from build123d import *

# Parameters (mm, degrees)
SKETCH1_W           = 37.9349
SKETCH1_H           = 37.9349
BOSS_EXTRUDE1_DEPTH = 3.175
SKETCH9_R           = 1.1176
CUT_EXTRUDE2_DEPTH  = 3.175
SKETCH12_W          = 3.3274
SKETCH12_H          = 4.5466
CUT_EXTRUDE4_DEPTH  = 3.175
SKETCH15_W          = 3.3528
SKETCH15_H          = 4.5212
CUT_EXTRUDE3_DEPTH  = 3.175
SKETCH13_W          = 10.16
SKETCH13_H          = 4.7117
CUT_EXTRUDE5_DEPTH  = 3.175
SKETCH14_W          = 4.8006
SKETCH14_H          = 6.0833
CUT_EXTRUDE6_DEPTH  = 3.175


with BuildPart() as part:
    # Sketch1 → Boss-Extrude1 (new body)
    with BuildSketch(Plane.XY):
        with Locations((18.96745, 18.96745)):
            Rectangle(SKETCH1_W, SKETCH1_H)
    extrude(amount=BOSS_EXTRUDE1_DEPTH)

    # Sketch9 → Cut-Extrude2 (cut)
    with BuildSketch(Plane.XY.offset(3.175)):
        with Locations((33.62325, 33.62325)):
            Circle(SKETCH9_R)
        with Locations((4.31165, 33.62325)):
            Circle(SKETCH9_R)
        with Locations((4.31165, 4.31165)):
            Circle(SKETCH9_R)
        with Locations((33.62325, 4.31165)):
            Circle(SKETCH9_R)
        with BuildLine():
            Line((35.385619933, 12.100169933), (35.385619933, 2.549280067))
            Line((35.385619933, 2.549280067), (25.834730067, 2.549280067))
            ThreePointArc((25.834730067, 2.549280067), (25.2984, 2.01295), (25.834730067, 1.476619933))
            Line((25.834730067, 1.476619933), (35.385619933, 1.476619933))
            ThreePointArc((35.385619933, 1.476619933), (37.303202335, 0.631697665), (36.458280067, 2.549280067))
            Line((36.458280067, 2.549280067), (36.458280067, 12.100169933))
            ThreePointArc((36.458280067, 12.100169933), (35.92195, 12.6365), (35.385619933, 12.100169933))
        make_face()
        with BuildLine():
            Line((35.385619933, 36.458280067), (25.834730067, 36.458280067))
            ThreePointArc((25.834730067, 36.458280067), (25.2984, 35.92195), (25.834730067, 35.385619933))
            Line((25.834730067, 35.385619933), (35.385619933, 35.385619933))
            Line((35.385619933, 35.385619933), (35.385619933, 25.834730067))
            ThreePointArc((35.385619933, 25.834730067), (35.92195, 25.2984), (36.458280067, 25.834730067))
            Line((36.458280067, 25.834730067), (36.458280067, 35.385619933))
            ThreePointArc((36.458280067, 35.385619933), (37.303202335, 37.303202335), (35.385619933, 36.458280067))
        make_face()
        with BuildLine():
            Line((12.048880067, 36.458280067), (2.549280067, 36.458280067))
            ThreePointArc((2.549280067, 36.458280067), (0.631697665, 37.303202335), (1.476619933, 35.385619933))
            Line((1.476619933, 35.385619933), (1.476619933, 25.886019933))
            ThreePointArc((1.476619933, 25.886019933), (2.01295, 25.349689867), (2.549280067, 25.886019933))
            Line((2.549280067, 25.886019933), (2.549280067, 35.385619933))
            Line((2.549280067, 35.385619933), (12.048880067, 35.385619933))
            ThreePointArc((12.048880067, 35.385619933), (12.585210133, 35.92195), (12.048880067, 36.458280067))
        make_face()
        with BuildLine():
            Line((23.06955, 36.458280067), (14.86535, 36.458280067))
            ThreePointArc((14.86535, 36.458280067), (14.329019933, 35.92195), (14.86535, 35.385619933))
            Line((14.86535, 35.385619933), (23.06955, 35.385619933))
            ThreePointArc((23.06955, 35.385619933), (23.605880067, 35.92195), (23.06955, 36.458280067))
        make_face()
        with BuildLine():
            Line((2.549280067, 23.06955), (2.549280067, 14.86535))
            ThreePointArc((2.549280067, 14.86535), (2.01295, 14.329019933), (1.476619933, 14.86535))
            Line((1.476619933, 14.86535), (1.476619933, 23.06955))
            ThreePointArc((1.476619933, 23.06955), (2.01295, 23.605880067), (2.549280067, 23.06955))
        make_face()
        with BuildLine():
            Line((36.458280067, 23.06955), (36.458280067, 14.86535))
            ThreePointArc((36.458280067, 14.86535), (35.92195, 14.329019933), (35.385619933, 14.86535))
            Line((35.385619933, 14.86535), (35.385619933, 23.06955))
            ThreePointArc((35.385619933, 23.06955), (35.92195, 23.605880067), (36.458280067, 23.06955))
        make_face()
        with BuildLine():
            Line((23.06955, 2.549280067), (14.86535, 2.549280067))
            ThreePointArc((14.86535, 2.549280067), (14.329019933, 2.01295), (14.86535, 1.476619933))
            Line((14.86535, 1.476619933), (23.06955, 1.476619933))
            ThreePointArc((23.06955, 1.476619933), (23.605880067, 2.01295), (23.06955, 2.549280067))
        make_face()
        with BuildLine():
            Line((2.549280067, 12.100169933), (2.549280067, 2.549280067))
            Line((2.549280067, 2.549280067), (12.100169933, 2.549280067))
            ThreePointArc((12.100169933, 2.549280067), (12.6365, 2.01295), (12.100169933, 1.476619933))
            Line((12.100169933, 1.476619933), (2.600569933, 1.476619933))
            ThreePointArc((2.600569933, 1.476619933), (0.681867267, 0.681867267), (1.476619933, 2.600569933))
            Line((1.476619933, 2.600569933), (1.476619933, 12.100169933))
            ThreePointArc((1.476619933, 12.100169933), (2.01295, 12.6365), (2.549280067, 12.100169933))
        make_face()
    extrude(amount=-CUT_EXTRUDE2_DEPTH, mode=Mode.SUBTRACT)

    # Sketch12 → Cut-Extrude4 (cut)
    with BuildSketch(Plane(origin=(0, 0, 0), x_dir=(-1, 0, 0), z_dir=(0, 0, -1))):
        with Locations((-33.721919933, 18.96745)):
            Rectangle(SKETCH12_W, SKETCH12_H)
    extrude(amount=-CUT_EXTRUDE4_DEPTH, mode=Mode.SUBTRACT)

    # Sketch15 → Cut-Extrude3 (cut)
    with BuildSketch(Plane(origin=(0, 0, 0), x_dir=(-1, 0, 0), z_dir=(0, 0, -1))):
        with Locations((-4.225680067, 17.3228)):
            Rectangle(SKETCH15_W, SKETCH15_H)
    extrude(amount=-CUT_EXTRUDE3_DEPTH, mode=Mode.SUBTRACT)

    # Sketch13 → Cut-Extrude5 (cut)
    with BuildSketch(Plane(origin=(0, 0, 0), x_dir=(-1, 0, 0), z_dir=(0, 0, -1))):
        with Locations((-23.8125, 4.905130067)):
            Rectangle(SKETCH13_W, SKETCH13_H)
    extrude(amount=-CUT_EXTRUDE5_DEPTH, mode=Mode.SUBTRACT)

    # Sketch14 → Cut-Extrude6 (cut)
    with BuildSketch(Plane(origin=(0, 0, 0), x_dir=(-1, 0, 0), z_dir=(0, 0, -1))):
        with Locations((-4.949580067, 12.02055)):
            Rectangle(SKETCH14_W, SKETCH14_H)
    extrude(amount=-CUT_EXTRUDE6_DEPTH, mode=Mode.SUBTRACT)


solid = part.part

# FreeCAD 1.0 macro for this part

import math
import FreeCAD as App
import Part
import Sketcher
Q = App.Units.Quantity

doc = App.newDocument("Part")
body = doc.addObject("PartDesign::Body", "Body")

sketch1 = doc.addObject("Sketcher::SketchObject", "Sketch")
body.addObject(sketch1)
sketch1.AttachmentSupport = (doc.XY_Plane, [""])
sketch1.MapMode = "FlatFace"
sketch1.addGeometry([
    Part.LineSegment(App.Vector(0, 38, 0), App.Vector(0, 0, 0)),
    Part.LineSegment(App.Vector(0, 0, 0), App.Vector(38, 0, 0)),
    Part.LineSegment(App.Vector(38, 0, 0), App.Vector(38, 38, 0)),
    Part.LineSegment(App.Vector(38, 38, 0), App.Vector(0, 38, 0)),
], False)
sketch1.addConstraint([
    Sketcher.Constraint("Coincident", 0, 2, 1, 1),
    Sketcher.Constraint("Coincident", 1, 2, 2, 1),
    Sketcher.Constraint("Coincident", 2, 2, 3, 1),
    Sketcher.Constraint("Coincident", 3, 2, 0, 1),
    Sketcher.Constraint("Vertical", 0),
    Sketcher.Constraint("Horizontal", 1),
    Sketcher.Constraint("Vertical", 2),
    Sketcher.Constraint("Horizontal", 3),
    Sketcher.Constraint("Coincident", 0, 2, -1, 1),
    Sketcher.Constraint("Equal", 3, 0),
    Sketcher.Constraint("DistanceX", 1, 1, 1, 2, Q("1.4935 in")),
])
pad1 = doc.addObject("PartDesign::Pad", "Pad")
body.addObject(pad1)
pad1.Profile = sketch1
pad1.Length = Q("0.125 in")

sketch2 = doc.addObject("Sketcher::SketchObject", "Sketch001")
body.addObject(sketch2)
sketch2.AttachmentSupport = (doc.XY_Plane, [""])
sketch2.MapMode = "FlatFace"
sketch2.AttachmentOffset = App.Placement(App.Vector(0, 0, 0.125 * 25.4), App.Rotation())
sketch2.addGeometry([
    Part.Circle(App.Vector(33.6, 33.6, 0), App.Vector(0, 0, 1), 1.1),
    Part.Circle(App.Vector(4.3, 33.6, 0), App.Vector(0, 0, 1), 1.1),
    Part.Circle(App.Vector(4.3, 4.3, 0), App.Vector(0, 0, 1), 1.1),
    Part.Circle(App.Vector(33.6, 4.3, 0), App.Vector(0, 0, 1), 1.1),
    Part.LineSegment(App.Vector(35.4, 12.1, 0), App.Vector(35.4, 2.5, 0)),
    Part.LineSegment(App.Vector(35.4, 2.5, 0), App.Vector(25.8, 2.5, 0)),
    Part.ArcOfCircle(Part.Circle(App.Vector(25.8, 2, 0), App.Vector(0, 0, 1), 0.5), math.radians(90), math.radians(270)),
    Part.LineSegment(App.Vector(25.8, 1.5, 0), App.Vector(35.4, 1.5, 0)),
    Part.ArcOfCircle(Part.Circle(App.Vector(36.5, 1.4, 0), App.Vector(0, 0, 1), 1.1), math.radians(177), math.radians(453)),
    Part.LineSegment(App.Vector(36.5, 2.5, 0), App.Vector(36.5, 12.1, 0)),
    Part.ArcOfCircle(Part.Circle(App.Vector(35.9, 12.1, 0), App.Vector(0, 0, 1), 0.5), math.radians(0), math.radians(180)),
    Part.LineSegment(App.Vector(35.4, 36.5, 0), App.Vector(25.8, 36.5, 0)),
    Part.ArcOfCircle(Part.Circle(App.Vector(25.8, 35.9, 0), App.Vector(0, 0, 1), 0.5), math.radians(90), math.radians(270)),
    Part.LineSegment(App.Vector(25.8, 35.4, 0), App.Vector(35.4, 35.4, 0)),
    Part.LineSegment(App.Vector(35.4, 35.4, 0), App.Vector(35.4, 25.8, 0)),
    Part.ArcOfCircle(Part.Circle(App.Vector(35.9, 25.8, 0), App.Vector(0, 0, 1), 0.5), math.radians(180), math.radians(360)),
    Part.LineSegment(App.Vector(36.5, 25.8, 0), App.Vector(36.5, 35.4, 0)),
    Part.ArcOfCircle(Part.Circle(App.Vector(36.5, 36.5, 0), App.Vector(0, 0, 1), 1.1), math.radians(-93), math.radians(183)),
    Part.LineSegment(App.Vector(12, 36.5, 0), App.Vector(2.5, 36.5, 0)),
    Part.ArcOfCircle(Part.Circle(App.Vector(1.4, 36.5, 0), App.Vector(0, 0, 1), 1.1), math.radians(-3), math.radians(273)),
    Part.LineSegment(App.Vector(1.5, 35.4, 0), App.Vector(1.5, 25.9, 0)),
    Part.ArcOfCircle(Part.Circle(App.Vector(2, 25.9, 0), App.Vector(0, 0, 1), 0.5), math.radians(-180), math.radians(0)),
    Part.LineSegment(App.Vector(2.5, 25.9, 0), App.Vector(2.5, 35.4, 0)),
    Part.LineSegment(App.Vector(2.5, 35.4, 0), App.Vector(12, 35.4, 0)),
    Part.ArcOfCircle(Part.Circle(App.Vector(12, 35.9, 0), App.Vector(0, 0, 1), 0.5), math.radians(-90), math.radians(90)),
    Part.LineSegment(App.Vector(23.1, 36.5, 0), App.Vector(14.9, 36.5, 0)),
    Part.ArcOfCircle(Part.Circle(App.Vector(14.9, 35.9, 0), App.Vector(0, 0, 1), 0.5), math.radians(90), math.radians(270)),
    Part.LineSegment(App.Vector(14.9, 35.4, 0), App.Vector(23.1, 35.4, 0)),
    Part.ArcOfCircle(Part.Circle(App.Vector(23.1, 35.9, 0), App.Vector(0, 0, 1), 0.5), math.radians(-90), math.radians(90)),
    Part.LineSegment(App.Vector(2.5, 14.9, 0), App.Vector(2.5, 23.1, 0)),
    Part.ArcOfCircle(Part.Circle(App.Vector(2, 23.1, 0), App.Vector(0, 0, 1), 0.5), math.radians(0), math.radians(180)),
    Part.LineSegment(App.Vector(1.5, 23.1, 0), App.Vector(1.5, 14.9, 0)),
    Part.ArcOfCircle(Part.Circle(App.Vector(2, 14.9, 0), App.Vector(0, 0, 1), 0.5), math.radians(180), math.radians(360)),
    Part.LineSegment(App.Vector(36.5, 14.9, 0), App.Vector(36.5, 23.1, 0)),
    Part.ArcOfCircle(Part.Circle(App.Vector(35.9, 23.1, 0), App.Vector(0, 0, 1), 0.5), math.radians(0), math.radians(180)),
    Part.LineSegment(App.Vector(35.4, 23.1, 0), App.Vector(35.4, 14.9, 0)),
    Part.ArcOfCircle(Part.Circle(App.Vector(35.9, 14.9, 0), App.Vector(0, 0, 1), 0.5), math.radians(180), math.radians(360)),
    Part.LineSegment(App.Vector(23.1, 2.5, 0), App.Vector(14.9, 2.5, 0)),
    Part.ArcOfCircle(Part.Circle(App.Vector(14.9, 2, 0), App.Vector(0, 0, 1), 0.5), math.radians(90), math.radians(270)),
    Part.LineSegment(App.Vector(14.9, 1.5, 0), App.Vector(23.1, 1.5, 0)),
    Part.ArcOfCircle(Part.Circle(App.Vector(23.1, 2, 0), App.Vector(0, 0, 1), 0.5), math.radians(-90), math.radians(90)),
    Part.LineSegment(App.Vector(2.5, 2.5, 0), App.Vector(2.5, 12.1, 0)),
    Part.ArcOfCircle(Part.Circle(App.Vector(2, 12.1, 0), App.Vector(0, 0, 1), 0.5), math.radians(0), math.radians(180)),
    Part.LineSegment(App.Vector(1.5, 12.1, 0), App.Vector(1.5, 2.6, 0)),
    Part.ArcOfCircle(Part.Circle(App.Vector(1.5, 1.5, 0), App.Vector(0, 0, 1), 1.1), math.radians(90), math.radians(360)),
    Part.LineSegment(App.Vector(2.6, 1.5, 0), App.Vector(12.1, 1.5, 0)),
    Part.ArcOfCircle(Part.Circle(App.Vector(12.1, 2, 0), App.Vector(0, 0, 1), 0.5), math.radians(-90), math.radians(90)),
    Part.LineSegment(App.Vector(12.1, 2.5, 0), App.Vector(2.5, 2.5, 0)),
], False)
sketch2.addConstraint([
    Sketcher.Constraint("Coincident", 4, 2, 5, 1),
    Sketcher.Constraint("Tangent", 5, 2, 6, 1),
    Sketcher.Constraint("Tangent", 6, 2, 7, 1),
    Sketcher.Constraint("Coincident", 7, 2, 8, 1),
    Sketcher.Constraint("Coincident", 8, 2, 9, 1),
    Sketcher.Constraint("Tangent", 9, 2, 10, 1),
    Sketcher.Constraint("Tangent", 10, 2, 4, 1),
    Sketcher.Constraint("Tangent", 11, 2, 12, 1),
    Sketcher.Constraint("Tangent", 12, 2, 13, 1),
    Sketcher.Constraint("Coincident", 13, 2, 14, 1),
    Sketcher.Constraint("Tangent", 14, 2, 15, 1),
    Sketcher.Constraint("Tangent", 15, 2, 16, 1),
    Sketcher.Constraint("Coincident", 16, 2, 17, 1),
    Sketcher.Constraint("Coincident", 17, 2, 11, 1),
    Sketcher.Constraint("Coincident", 18, 2, 19, 1),
    Sketcher.Constraint("Coincident", 19, 2, 20, 1),
    Sketcher.Constraint("Tangent", 20, 2, 21, 1),
    Sketcher.Constraint("Tangent", 21, 2, 22, 1),
    Sketcher.Constraint("Coincident", 22, 2, 23, 1),
    Sketcher.Constraint("Tangent", 23, 2, 24, 1),
    Sketcher.Constraint("Tangent", 24, 2, 18, 1),
    Sketcher.Constraint("Tangent", 25, 2, 26, 1),
    Sketcher.Constraint("Tangent", 26, 2, 27, 1),
    Sketcher.Constraint("Tangent", 27, 2, 28, 1),
    Sketcher.Constraint("Tangent", 28, 2, 25, 1),
    Sketcher.Constraint("Tangent", 29, 2, 30, 1),
    Sketcher.Constraint("Tangent", 30, 2, 31, 1),
    Sketcher.Constraint("Tangent", 31, 2, 32, 1),
    Sketcher.Constraint("Tangent", 32, 2, 29, 1),
    Sketcher.Constraint("Tangent", 33, 2, 34, 1),
    Sketcher.Constraint("Tangent", 34, 2, 35, 1),
    Sketcher.Constraint("Tangent", 35, 2, 36, 1),
    Sketcher.Constraint("Tangent", 36, 2, 33, 1),
    Sketcher.Constraint("Tangent", 37, 2, 38, 1),
    Sketcher.Constraint("Tangent", 38, 2, 39, 1),
    Sketcher.Constraint("Tangent", 39, 2, 40, 1),
    Sketcher.Constraint("Tangent", 40, 2, 37, 1),
    Sketcher.Constraint("Tangent", 41, 2, 42, 1),
    Sketcher.Constraint("Tangent", 42, 2, 43, 1),
    Sketcher.Constraint("Coincident", 43, 2, 44, 1),
    Sketcher.Constraint("Coincident", 44, 2, 45, 1),
    Sketcher.Constraint("Tangent", 45, 2, 46, 1),
    Sketcher.Constraint("Tangent", 46, 2, 47, 1),
    Sketcher.Constraint("Coincident", 47, 2, 41, 1),
    Sketcher.Constraint("Vertical", 4),
    Sketcher.Constraint("Horizontal", 5),
    Sketcher.Constraint("Horizontal", 7),
    Sketcher.Constraint("Vertical", 9),
    Sketcher.Constraint("Horizontal", 11),
    Sketcher.Constraint("Horizontal", 13),
    Sketcher.Constraint("Vertical", 14),
    Sketcher.Constraint("Vertical", 16),
    Sketcher.Constraint("Horizontal", 18),
    Sketcher.Constraint("Vertical", 20),
    Sketcher.Constraint("Vertical", 22),
    Sketcher.Constraint("Horizontal", 23),
    Sketcher.Constraint("Horizontal", 25),
    Sketcher.Constraint("Horizontal", 27),
    Sketcher.Constraint("Vertical", 29),
    Sketcher.Constraint("Vertical", 31),
    Sketcher.Constraint("Vertical", 33),
    Sketcher.Constraint("Vertical", 35),
    Sketcher.Constraint("Horizontal", 37),
    Sketcher.Constraint("Horizontal", 39),
    Sketcher.Constraint("Vertical", 41),
    Sketcher.Constraint("Vertical", 43),
    Sketcher.Constraint("Horizontal", 45),
    Sketcher.Constraint("Horizontal", 47),
    Sketcher.Constraint("Equal", 0, 1),
    Sketcher.Constraint("Equal", 1, 2),
    Sketcher.Constraint("Equal", 2, 3),
    Sketcher.Constraint("Equal", 6, 10),
    Sketcher.Constraint("Equal", 10, 12),
    Sketcher.Constraint("Equal", 12, 15),
    Sketcher.Constraint("Equal", 8, 17),
    Sketcher.Constraint("Equal", 17, 19),
    Sketcher.Constraint("Equal", 15, 21),
    Sketcher.Constraint("Equal", 21, 24),
    Sketcher.Constraint("Equal", 24, 26),
    Sketcher.Constraint("Equal", 28, 30),
    Sketcher.Constraint("Equal", 32, 34),
    Sketcher.Constraint("Equal", 36, 38),
    Sketcher.Constraint("Equal", 40, 42),
    Sketcher.Constraint("Equal", 19, 44),
    Sketcher.Constraint("Equal", 42, 46),
    Sketcher.Constraint("Horizontal", 0, 3, 1, 3),
    Sketcher.Constraint("Horizontal", 2, 3, 3, 3),
    Sketcher.Constraint("Horizontal", 17, 3, 19, 3),
    Sketcher.Constraint("Horizontal", 12, 3, 24, 3),
    Sketcher.Constraint("Horizontal", 24, 3, 26, 3),
    Sketcher.Constraint("Horizontal", 30, 3, 34, 3),
    Sketcher.Constraint("Horizontal", 32, 3, 36, 3),
    Sketcher.Constraint("Horizontal", 6, 3, 38, 3),
    Sketcher.Constraint("Horizontal", 10, 3, 42, 3),
    Sketcher.Constraint("Horizontal", 40, 3, 46, 3),
    Sketcher.Constraint("Horizontal", 44, 3, 6, 2),
    Sketcher.Constraint("Horizontal", 5, 2, 8, 2),
    Sketcher.Constraint("Horizontal", 13, 2, 16, 2),
    Sketcher.Constraint("Horizontal", 16, 2, 19, 2),
    Sketcher.Constraint("Vertical", 1, 3, 2, 3),
    Sketcher.Constraint("Vertical", 0, 3, 3, 3),
    Sketcher.Constraint("Vertical", 6, 3, 12, 3),
    Sketcher.Constraint("Vertical", 10, 3, 15, 3),
    Sketcher.Constraint("Vertical", 8, 3, 17, 3),
    Sketcher.Constraint("Vertical", 21, 3, 30, 3),
    Sketcher.Constraint("Vertical", 15, 3, 34, 3),
    Sketcher.Constraint("Vertical", 26, 3, 38, 3),
    Sketcher.Constraint("Vertical", 28, 3, 40, 3),
    Sketcher.Constraint("Vertical", 32, 3, 42, 3),
    Sketcher.Constraint("Vertical", 4, 2, 7, 2),
    Sketcher.Constraint("Vertical", 44, 3, 19, 2),
    Sketcher.Constraint("Equal", 23, 45),
    Sketcher.Constraint("Equal", 13, 47),
    Sketcher.Constraint("Equal", 47, 4),
    Sketcher.Constraint("Equal", 9, 14),
    Sketcher.Constraint("Equal", 45, 20),
    Sketcher.Constraint("Equal", 39, 29),
    Sketcher.Constraint("Diameter", 0, Q("0.088 in")),
    Sketcher.Constraint("DistanceX", 18, 2, 18, 1, Q("0.374 in")),
    Sketcher.Constraint("DistanceX", 25, 2, 25, 1, Q("0.323 in")),
    Sketcher.Constraint("Radius", 6, 0.53633),
    Sketcher.Constraint("Radius", 8, 1.12395),
    Sketcher.Constraint("DistanceX", -1, 1, 0, 3, 33.62325),
    Sketcher.Constraint("DistanceY", -1, 1, 0, 3, 33.62325),
    Sketcher.Constraint("DistanceX", -1, 1, 1, 3, 4.31165),
    Sketcher.Constraint("DistanceY", -1, 1, 2, 3, 4.31165),
    Sketcher.Constraint("DistanceX", -1, 1, 6, 3, 25.83473),
    Sketcher.Constraint("DistanceY", -1, 1, 6, 3, 2.01295),
    Sketcher.Constraint("DistanceY", -1, 1, 12, 3, 35.92195),
    Sketcher.Constraint("DistanceX", -1, 1, 19, 3, 1.42645),
    Sketcher.Constraint("DistanceX", -1, 1, 26, 3, 14.86535),
    Sketcher.Constraint("DistanceY", -1, 1, 30, 3, 23.06955),
])
pocket1 = doc.addObject("PartDesign::Pocket", "Pocket")
body.addObject(pocket1)
pocket1.Profile = sketch2
pocket1.Length = Q("0.125 in")

sketch3 = doc.addObject("Sketcher::SketchObject", "Sketch002")
body.addObject(sketch3)
sketch3.AttachmentSupport = (doc.XY_Plane, [""])
sketch3.MapMode = "FlatFace"
sketch3.addGeometry([
    Part.LineSegment(App.Vector(35.4, 21.2, 0), App.Vector(35.4, 16.7, 0)),
    Part.LineSegment(App.Vector(35.4, 16.7, 0), App.Vector(32.1, 16.7, 0)),
    Part.LineSegment(App.Vector(32.1, 16.7, 0), App.Vector(32.1, 21.2, 0)),
    Part.LineSegment(App.Vector(32.1, 21.2, 0), App.Vector(35.4, 21.2, 0)),
], False)
sketch3.addConstraint([
    Sketcher.Constraint("Coincident", 0, 2, 1, 1),
    Sketcher.Constraint("Coincident", 1, 2, 2, 1),
    Sketcher.Constraint("Coincident", 2, 2, 3, 1),
    Sketcher.Constraint("Coincident", 3, 2, 0, 1),
    Sketcher.Constraint("Vertical", 0),
    Sketcher.Constraint("Horizontal", 1),
    Sketcher.Constraint("Vertical", 2),
    Sketcher.Constraint("Horizontal", 3),
    Sketcher.Constraint("DistanceX", 1, 2, 1, 1, Q("0.131 in")),
    Sketcher.Constraint("DistanceY", 0, 2, 0, 1, Q("0.179 in")),
    Sketcher.Constraint("DistanceX", -1, 1, 0, 2, 35.38562),
    Sketcher.Constraint("DistanceY", -1, 1, 0, 2, 16.69415),
])
pocket2 = doc.addObject("PartDesign::Pocket", "Pocket001")
body.addObject(pocket2)
pocket2.Profile = sketch3
pocket2.Length = Q("0.125 in")
pocket2.Reversed = True

sketch4 = doc.addObject("Sketcher::SketchObject", "Sketch003")
body.addObject(sketch4)
sketch4.AttachmentSupport = (doc.XY_Plane, [""])
sketch4.MapMode = "FlatFace"
sketch4.addGeometry([
    Part.LineSegment(App.Vector(5.9, 19.6, 0), App.Vector(5.9, 15.1, 0)),
    Part.LineSegment(App.Vector(5.9, 15.1, 0), App.Vector(2.5, 15.1, 0)),
    Part.LineSegment(App.Vector(2.5, 15.1, 0), App.Vector(2.5, 19.6, 0)),
    Part.LineSegment(App.Vector(2.5, 19.6, 0), App.Vector(5.9, 19.6, 0)),
], False)
sketch4.addConstraint([
    Sketcher.Constraint("Coincident", 0, 2, 1, 1),
    Sketcher.Constraint("Coincident", 1, 2, 2, 1),
    Sketcher.Constraint("Coincident", 2, 2, 3, 1),
    Sketcher.Constraint("Coincident", 3, 2, 0, 1),
    Sketcher.Constraint("Vertical", 0),
    Sketcher.Constraint("Horizontal", 1),
    Sketcher.Constraint("Vertical", 2),
    Sketcher.Constraint("Horizontal", 3),
    Sketcher.Constraint("DistanceX", 1, 2, 1, 1, Q("0.132 in")),
    Sketcher.Constraint("DistanceY", 0, 2, 0, 1, Q("0.178 in")),
    Sketcher.Constraint("DistanceY", -1, 1, 0, 2, Q("0.593 in")),
    Sketcher.Constraint("DistanceX", -1, 1, 0, 2, 5.90208),
])
pocket3 = doc.addObject("PartDesign::Pocket", "Pocket002")
body.addObject(pocket3)
pocket3.Profile = sketch4
pocket3.Length = Q("0.125 in")
pocket3.Reversed = True

sketch5 = doc.addObject("Sketcher::SketchObject", "Sketch004")
body.addObject(sketch5)
sketch5.AttachmentSupport = (doc.XY_Plane, [""])
sketch5.MapMode = "FlatFace"
sketch5.addGeometry([
    Part.LineSegment(App.Vector(28.9, 7.3, 0), App.Vector(28.9, 2.5, 0)),
    Part.LineSegment(App.Vector(28.9, 2.5, 0), App.Vector(18.7, 2.5, 0)),
    Part.LineSegment(App.Vector(18.7, 2.5, 0), App.Vector(18.7, 7.3, 0)),
    Part.LineSegment(App.Vector(18.7, 7.3, 0), App.Vector(28.9, 7.3, 0)),
], False)
sketch5.addConstraint([
    Sketcher.Constraint("Coincident", 0, 2, 1, 1),
    Sketcher.Constraint("Coincident", 1, 2, 2, 1),
    Sketcher.Constraint("Coincident", 2, 2, 3, 1),
    Sketcher.Constraint("Coincident", 3, 2, 0, 1),
    Sketcher.Constraint("Vertical", 0),
    Sketcher.Constraint("Horizontal", 1),
    Sketcher.Constraint("Vertical", 2),
    Sketcher.Constraint("Horizontal", 3),
    Sketcher.Constraint("DistanceX", 1, 2, 1, 1, Q("0.4 in")),
    Sketcher.Constraint("DistanceY", 0, 2, 0, 1, Q("0.1855 in")),
    Sketcher.Constraint("DistanceX", -1, 1, 0, 2, Q("1.1375 in")),
    Sketcher.Constraint("DistanceY", -1, 1, 0, 2, 2.54928),
])
pocket4 = doc.addObject("PartDesign::Pocket", "Pocket003")
body.addObject(pocket4)
pocket4.Profile = sketch5
pocket4.Length = Q("0.125 in")
pocket4.Reversed = True

sketch6 = doc.addObject("Sketcher::SketchObject", "Sketch005")
body.addObject(sketch6)
sketch6.AttachmentSupport = (doc.XY_Plane, [""])
sketch6.MapMode = "FlatFace"
sketch6.addGeometry([
    Part.LineSegment(App.Vector(7.3, 15.1, 0), App.Vector(7.3, 9, 0)),
    Part.LineSegment(App.Vector(7.3, 9, 0), App.Vector(2.5, 9, 0)),
    Part.LineSegment(App.Vector(2.5, 9, 0), App.Vector(2.5, 15.1, 0)),
    Part.LineSegment(App.Vector(2.5, 15.1, 0), App.Vector(7.3, 15.1, 0)),
], False)
sketch6.addConstraint([
    Sketcher.Constraint("Coincident", 0, 2, 1, 1),
    Sketcher.Constraint("Coincident", 1, 2, 2, 1),
    Sketcher.Constraint("Coincident", 2, 2, 3, 1),
    Sketcher.Constraint("Coincident", 3, 2, 0, 1),
    Sketcher.Constraint("Vertical", 0),
    Sketcher.Constraint("Horizontal", 1),
    Sketcher.Constraint("Vertical", 2),
    Sketcher.Constraint("Horizontal", 3),
    Sketcher.Constraint("DistanceX", 1, 2, 1, 1, Q("0.189 in")),
    Sketcher.Constraint("DistanceY", 0, 2, 0, 1, Q("0.2395 in")),
    Sketcher.Constraint("DistanceY", -1, 1, 2, 2, Q("0.593 in")),
    Sketcher.Constraint("DistanceX", -1, 1, 0, 2, 7.34988),
])
pocket5 = doc.addObject("PartDesign::Pocket", "Pocket004")
body.addObject(pocket5)
pocket5.Profile = sketch6
pocket5.Length = Q("0.125 in")
pocket5.Reversed = True

doc.recompute()
